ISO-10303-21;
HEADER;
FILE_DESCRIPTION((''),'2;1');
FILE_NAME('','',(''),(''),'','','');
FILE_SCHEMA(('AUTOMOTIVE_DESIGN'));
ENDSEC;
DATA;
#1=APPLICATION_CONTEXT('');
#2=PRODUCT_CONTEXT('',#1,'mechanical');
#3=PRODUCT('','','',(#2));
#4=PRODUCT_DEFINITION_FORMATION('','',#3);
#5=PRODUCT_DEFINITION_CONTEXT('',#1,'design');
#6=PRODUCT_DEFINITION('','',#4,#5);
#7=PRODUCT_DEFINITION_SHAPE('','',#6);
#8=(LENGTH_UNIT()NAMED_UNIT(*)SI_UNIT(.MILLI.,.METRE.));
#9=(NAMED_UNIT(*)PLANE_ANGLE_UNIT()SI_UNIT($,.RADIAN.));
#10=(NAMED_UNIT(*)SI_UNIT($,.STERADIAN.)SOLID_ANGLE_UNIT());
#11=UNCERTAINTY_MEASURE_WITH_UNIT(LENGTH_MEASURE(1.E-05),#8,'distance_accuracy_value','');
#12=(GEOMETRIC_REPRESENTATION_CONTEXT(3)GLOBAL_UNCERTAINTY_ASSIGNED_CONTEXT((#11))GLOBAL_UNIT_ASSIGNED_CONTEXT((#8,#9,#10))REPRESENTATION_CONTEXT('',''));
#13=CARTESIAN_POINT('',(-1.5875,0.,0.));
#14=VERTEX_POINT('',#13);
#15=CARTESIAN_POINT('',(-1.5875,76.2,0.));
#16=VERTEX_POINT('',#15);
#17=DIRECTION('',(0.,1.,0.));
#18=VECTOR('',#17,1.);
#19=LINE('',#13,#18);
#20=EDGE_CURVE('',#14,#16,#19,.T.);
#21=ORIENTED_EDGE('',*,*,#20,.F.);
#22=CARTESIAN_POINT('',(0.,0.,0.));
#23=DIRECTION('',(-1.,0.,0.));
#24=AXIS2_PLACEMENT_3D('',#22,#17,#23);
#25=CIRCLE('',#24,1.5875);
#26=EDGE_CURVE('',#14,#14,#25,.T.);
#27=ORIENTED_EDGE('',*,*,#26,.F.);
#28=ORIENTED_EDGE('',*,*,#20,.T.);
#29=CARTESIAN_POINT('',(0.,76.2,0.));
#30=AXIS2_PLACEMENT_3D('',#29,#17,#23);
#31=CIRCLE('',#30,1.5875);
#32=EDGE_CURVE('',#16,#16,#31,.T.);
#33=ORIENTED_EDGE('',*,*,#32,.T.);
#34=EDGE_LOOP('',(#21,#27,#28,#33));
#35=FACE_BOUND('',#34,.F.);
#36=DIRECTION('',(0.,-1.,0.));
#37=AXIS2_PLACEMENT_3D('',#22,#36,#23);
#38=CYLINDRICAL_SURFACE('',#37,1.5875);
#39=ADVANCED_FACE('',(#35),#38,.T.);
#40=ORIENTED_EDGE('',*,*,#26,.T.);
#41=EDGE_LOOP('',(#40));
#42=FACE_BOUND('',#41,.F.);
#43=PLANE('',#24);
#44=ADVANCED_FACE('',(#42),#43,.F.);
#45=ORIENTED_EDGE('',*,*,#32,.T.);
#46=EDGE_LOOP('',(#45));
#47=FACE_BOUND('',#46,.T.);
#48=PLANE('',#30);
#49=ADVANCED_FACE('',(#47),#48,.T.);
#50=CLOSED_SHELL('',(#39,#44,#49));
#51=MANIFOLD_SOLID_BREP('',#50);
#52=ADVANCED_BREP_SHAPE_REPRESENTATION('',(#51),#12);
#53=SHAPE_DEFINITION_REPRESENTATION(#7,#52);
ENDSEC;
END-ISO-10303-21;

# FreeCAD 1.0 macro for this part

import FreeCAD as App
import Part
import Sketcher
Q = App.Units.Quantity

doc = App.newDocument("Part")
body = doc.addObject("PartDesign::Body", "Body")

# Sketch on XZ plane
sketch1 = body.newObject("Sketcher::SketchObject", "Sketch")
sketch1.AttachmentSupport = (doc.getObject("XZ_Plane"), [""])
sketch1.MapMode = "FlatFace"
sketch1.addGeometry(Part.Circle(App.Vector(0, 0, 0), App.Vector(0, 0, 1), 1.6), False)
sketch1.addConstraint(Sketcher.Constraint("Coincident", 0, 3, -1, 1))
sketch1.addConstraint(Sketcher.Constraint("Diameter", 0, Q("0.125 in")))
pad1 = body.newObject("PartDesign::Pad", "Pad")
pad1.Profile = sketch1
pad1.Length = Q("3 in")
pad1.Reversed = True

doc.recompute()
